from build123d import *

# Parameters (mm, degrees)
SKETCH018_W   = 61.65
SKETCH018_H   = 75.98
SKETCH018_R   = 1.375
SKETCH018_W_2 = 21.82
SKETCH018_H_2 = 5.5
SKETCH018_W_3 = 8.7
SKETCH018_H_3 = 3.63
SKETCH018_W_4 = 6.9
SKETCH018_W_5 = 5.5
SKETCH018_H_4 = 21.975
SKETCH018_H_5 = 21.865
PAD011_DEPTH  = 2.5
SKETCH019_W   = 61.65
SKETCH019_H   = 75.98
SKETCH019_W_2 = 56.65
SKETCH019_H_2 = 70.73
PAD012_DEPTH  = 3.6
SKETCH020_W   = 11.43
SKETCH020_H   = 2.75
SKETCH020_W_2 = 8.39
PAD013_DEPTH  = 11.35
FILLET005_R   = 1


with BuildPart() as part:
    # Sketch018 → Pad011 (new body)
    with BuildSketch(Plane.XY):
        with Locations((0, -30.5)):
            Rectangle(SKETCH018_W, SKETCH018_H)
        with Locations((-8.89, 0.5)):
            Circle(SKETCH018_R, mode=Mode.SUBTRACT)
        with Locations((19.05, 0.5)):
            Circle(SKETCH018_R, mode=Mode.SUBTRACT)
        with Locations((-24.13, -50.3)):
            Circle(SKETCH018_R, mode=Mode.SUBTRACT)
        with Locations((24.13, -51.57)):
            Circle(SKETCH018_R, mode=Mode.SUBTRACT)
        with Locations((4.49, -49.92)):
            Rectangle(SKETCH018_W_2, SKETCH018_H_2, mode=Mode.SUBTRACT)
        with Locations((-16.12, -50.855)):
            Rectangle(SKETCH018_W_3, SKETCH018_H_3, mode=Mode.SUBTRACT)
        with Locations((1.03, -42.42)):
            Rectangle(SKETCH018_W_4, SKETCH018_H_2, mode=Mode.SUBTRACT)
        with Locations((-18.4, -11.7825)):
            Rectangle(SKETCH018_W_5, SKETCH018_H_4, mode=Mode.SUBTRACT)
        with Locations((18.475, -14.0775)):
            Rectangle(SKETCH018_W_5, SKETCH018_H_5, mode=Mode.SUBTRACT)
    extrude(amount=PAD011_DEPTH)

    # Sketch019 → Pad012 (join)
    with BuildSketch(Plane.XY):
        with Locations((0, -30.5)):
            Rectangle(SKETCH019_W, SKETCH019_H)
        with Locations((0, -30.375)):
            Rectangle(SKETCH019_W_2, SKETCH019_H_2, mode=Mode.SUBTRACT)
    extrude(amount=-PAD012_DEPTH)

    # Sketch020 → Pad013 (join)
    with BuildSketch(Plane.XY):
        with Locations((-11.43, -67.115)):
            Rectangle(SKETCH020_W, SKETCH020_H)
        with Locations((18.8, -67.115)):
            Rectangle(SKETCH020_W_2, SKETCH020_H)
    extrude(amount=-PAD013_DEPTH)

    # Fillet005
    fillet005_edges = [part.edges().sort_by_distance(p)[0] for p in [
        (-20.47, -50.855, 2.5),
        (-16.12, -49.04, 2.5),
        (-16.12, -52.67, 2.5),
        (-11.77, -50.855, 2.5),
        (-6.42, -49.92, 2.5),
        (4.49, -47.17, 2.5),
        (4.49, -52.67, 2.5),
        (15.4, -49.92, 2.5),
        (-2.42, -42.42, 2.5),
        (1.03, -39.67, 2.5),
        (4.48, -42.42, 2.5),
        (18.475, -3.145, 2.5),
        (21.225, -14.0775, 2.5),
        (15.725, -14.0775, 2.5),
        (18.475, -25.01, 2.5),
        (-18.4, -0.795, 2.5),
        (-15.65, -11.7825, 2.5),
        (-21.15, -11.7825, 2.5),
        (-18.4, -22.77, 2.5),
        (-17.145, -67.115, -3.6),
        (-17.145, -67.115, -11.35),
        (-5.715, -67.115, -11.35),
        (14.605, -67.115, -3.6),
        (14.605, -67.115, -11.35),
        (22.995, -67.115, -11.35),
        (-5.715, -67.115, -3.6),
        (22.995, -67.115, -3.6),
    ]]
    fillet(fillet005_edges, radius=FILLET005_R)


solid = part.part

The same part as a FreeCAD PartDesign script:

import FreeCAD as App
import Part
import Sketcher


def edges_at(feature, points):
    """Names of the edges that pass closest to the given points."""
    edges = feature.Shape.Edges
    near = lambda p: min(range(len(edges)), key=lambda i: edges[i].distToShape(Part.Vertex(*p))[0])
    return sorted({f"Edge{near(p) + 1}" for p in points})

doc = App.newDocument("Part")
body = doc.addObject("PartDesign::Body", "Body")

sketch1 = body.newObject("Sketcher::SketchObject", "Sketch")
sketch1.AttachmentSupport = (doc.getObject("XY_Plane"), [""])
sketch1.MapMode = "FlatFace"
sketch1.addGeometry(Part.LineSegment(App.Vector(-30.8, 7.5, 0), App.Vector(-30.8, -68.5, 0)), False)
sketch1.addGeometry(Part.LineSegment(App.Vector(-30.8, -68.5, 0), App.Vector(30.8, -68.5, 0)), False)
sketch1.addGeometry(Part.LineSegment(App.Vector(30.8, -68.5, 0), App.Vector(30.8, 7.5, 0)), False)
sketch1.addGeometry(Part.LineSegment(App.Vector(30.8, 7.5, 0), App.Vector(-30.8, 7.5, 0)), False)
sketch1.addGeometry(Part.Circle(App.Vector(-24.1, -50.3, 0), App.Vector(0, 0, 1), 1.4), False)
sketch1.addGeometry(Part.LineSegment(App.Vector(-11.8, -52.7, 0), App.Vector(-20.5, -52.7, 0)), False)
sketch1.addGeometry(Part.LineSegment(App.Vector(-20.5, -52.7, 0), App.Vector(-20.5, -49, 0)), False)
sketch1.addGeometry(Part.LineSegment(App.Vector(-20.5, -49, 0), App.Vector(-11.8, -49, 0)), False)
sketch1.addGeometry(Part.LineSegment(App.Vector(-11.8, -49, 0), App.Vector(-11.8, -52.7, 0)), False)
sketch1.addGeometry(Part.LineSegment(App.Vector(15.4, -52.7, 0), App.Vector(-6.4, -52.7, 0)), False)
sketch1.addGeometry(Part.LineSegment(App.Vector(-6.4, -52.7, 0), App.Vector(-6.4, -47.2, 0)), False)
sketch1.addGeometry(Part.LineSegment(App.Vector(-6.4, -47.2, 0), App.Vector(15.4, -47.2, 0)), False)
sketch1.addGeometry(Part.LineSegment(App.Vector(15.4, -47.2, 0), App.Vector(15.4, -52.7, 0)), False)
sketch1.addGeometry(Part.LineSegment(App.Vector(4.5, -45.2, 0), App.Vector(-2.4, -45.2, 0)), False)
sketch1.addGeometry(Part.LineSegment(App.Vector(-2.4, -45.2, 0), App.Vector(-2.4, -39.7, 0)), False)
sketch1.addGeometry(Part.LineSegment(App.Vector(-2.4, -39.7, 0), App.Vector(4.5, -39.7, 0)), False)
sketch1.addGeometry(Part.LineSegment(App.Vector(4.5, -39.7, 0), App.Vector(4.5, -45.2, 0)), False)
sketch1.addGeometry(Part.Circle(App.Vector(24.1, -51.6, 0), App.Vector(0, 0, 1), 1.4), False)
sketch1.addGeometry(Part.LineSegment(App.Vector(-15.7, -22.8, 0), App.Vector(-21.1, -22.8, 0)), False)
sketch1.addGeometry(Part.LineSegment(App.Vector(-21.1, -22.8, 0), App.Vector(-21.1, -0.8, 0)), False)
sketch1.addGeometry(Part.LineSegment(App.Vector(-21.1, -0.8, 0), App.Vector(-15.7, -0.8, 0)), False)
sketch1.addGeometry(Part.LineSegment(App.Vector(-15.7, -0.8, 0), App.Vector(-15.7, -22.8, 0)), False)
sketch1.addGeometry(Part.Circle(App.Vector(-8.9, 0.5, 0), App.Vector(0, 0, 1), 1.4), False)
sketch1.addGeometry(Part.LineSegment(App.Vector(21.2, -25, 0), App.Vector(15.7, -25, 0)), False)
sketch1.addGeometry(Part.LineSegment(App.Vector(15.7, -25, 0), App.Vector(15.7, -3.1, 0)), False)
sketch1.addGeometry(Part.LineSegment(App.Vector(15.7, -3.1, 0), App.Vector(21.2, -3.1, 0)), False)
sketch1.addGeometry(Part.LineSegment(App.Vector(21.2, -3.1, 0), App.Vector(21.2, -25, 0)), False)
sketch1.addGeometry(Part.Circle(App.Vector(19.1, 0.5, 0), App.Vector(0, 0, 1), 1.4), False)
sketch1.addConstraint(Sketcher.Constraint("Coincident", 0, 2, 1, 1))
sketch1.addConstraint(Sketcher.Constraint("Coincident", 1, 2, 2, 1))
sketch1.addConstraint(Sketcher.Constraint("Coincident", 2, 2, 3, 1))
sketch1.addConstraint(Sketcher.Constraint("Coincident", 3, 2, 0, 1))
sketch1.addConstraint(Sketcher.Constraint("Coincident", 5, 2, 6, 1))
sketch1.addConstraint(Sketcher.Constraint("Coincident", 6, 2, 7, 1))
sketch1.addConstraint(Sketcher.Constraint("Coincident", 7, 2, 8, 1))
sketch1.addConstraint(Sketcher.Constraint("Coincident", 8, 2, 5, 1))
sketch1.addConstraint(Sketcher.Constraint("Coincident", 9, 2, 10, 1))
sketch1.addConstraint(Sketcher.Constraint("Coincident", 10, 2, 11, 1))
sketch1.addConstraint(Sketcher.Constraint("Coincident", 11, 2, 12, 1))
sketch1.addConstraint(Sketcher.Constraint("Coincident", 12, 2, 9, 1))
sketch1.addConstraint(Sketcher.Constraint("Coincident", 13, 2, 14, 1))
sketch1.addConstraint(Sketcher.Constraint("Coincident", 14, 2, 15, 1))
sketch1.addConstraint(Sketcher.Constraint("Coincident", 15, 2, 16, 1))
sketch1.addConstraint(Sketcher.Constraint("Coincident", 16, 2, 13, 1))
sketch1.addConstraint(Sketcher.Constraint("Coincident", 18, 2, 19, 1))
sketch1.addConstraint(Sketcher.Constraint("Coincident", 19, 2, 20, 1))
sketch1.addConstraint(Sketcher.Constraint("Coincident", 20, 2, 21, 1))
sketch1.addConstraint(Sketcher.Constraint("Coincident", 21, 2, 18, 1))
sketch1.addConstraint(Sketcher.Constraint("Coincident", 23, 2, 24, 1))
sketch1.addConstraint(Sketcher.Constraint("Coincident", 24, 2, 25, 1))
sketch1.addConstraint(Sketcher.Constraint("Coincident", 25, 2, 26, 1))
sketch1.addConstraint(Sketcher.Constraint("Coincident", 26, 2, 23, 1))
sketch1.addConstraint(Sketcher.Constraint("Vertical", 0))
sketch1.addConstraint(Sketcher.Constraint("Horizontal", 1))
sketch1.addConstraint(Sketcher.Constraint("Vertical", 2))
sketch1.addConstraint(Sketcher.Constraint("Horizontal", 3))
sketch1.addConstraint(Sketcher.Constraint("Horizontal", 5))
sketch1.addConstraint(Sketcher.Constraint("Vertical", 6))
sketch1.addConstraint(Sketcher.Constraint("Horizontal", 7))
sketch1.addConstraint(Sketcher.Constraint("Vertical", 8))
sketch1.addConstraint(Sketcher.Constraint("Horizontal", 9))
sketch1.addConstraint(Sketcher.Constraint("Vertical", 10))
sketch1.addConstraint(Sketcher.Constraint("Horizontal", 11))
sketch1.addConstraint(Sketcher.Constraint("Vertical", 12))
sketch1.addConstraint(Sketcher.Constraint("Horizontal", 13))
sketch1.addConstraint(Sketcher.Constraint("Vertical", 14))
sketch1.addConstraint(Sketcher.Constraint("Horizontal", 15))
sketch1.addConstraint(Sketcher.Constraint("Vertical", 16))
sketch1.addConstraint(Sketcher.Constraint("Horizontal", 18))
sketch1.addConstraint(Sketcher.Constraint("Vertical", 19))
sketch1.addConstraint(Sketcher.Constraint("Horizontal", 20))
sketch1.addConstraint(Sketcher.Constraint("Vertical", 21))
sketch1.addConstraint(Sketcher.Constraint("Horizontal", 23))
sketch1.addConstraint(Sketcher.Constraint("Vertical", 24))
sketch1.addConstraint(Sketcher.Constraint("Horizontal", 25))
sketch1.addConstraint(Sketcher.Constraint("Vertical", 26))
sketch1.addConstraint(Sketcher.Constraint("Equal", 4, 17))
sketch1.addConstraint(Sketcher.Constraint("Equal", 17, 22))
sketch1.addConstraint(Sketcher.Constraint("Equal", 22, 27))
sketch1.addConstraint(Sketcher.Constraint("Horizontal", 22, 3, 27, 3))
sketch1.addConstraint(Sketcher.Constraint("Horizontal", 8, 2, 9, 2))
sketch1.addConstraint(Sketcher.Constraint("Equal", 20, 23))
sketch1.addConstraint(Sketcher.Constraint("Equal", 25, 10))
sketch1.addConstraint(Sketcher.Constraint("Equal", 12, 14))
sketch1.addConstraint(Sketcher.Constraint("Diameter", 4, 2.75))
sketch1.addConstraint(Sketcher.Constraint("DistanceX", 5, 2, 5, 1, 8.7))
sketch1.addConstraint(Sketcher.Constraint("DistanceX", 13, 2, 13, 1, 6.9))
sketch1.addConstraint(Sketcher.Constraint("DistanceX", 18, 2, 18, 1, 5.5))
sketch1.addConstraint(Sketcher.Constraint("DistanceX", 10, 2, 13, 2, 4.0))
sketch1.addConstraint(Sketcher.Constraint("DistanceY", 10, 2, 13, 2, 2.0))
sketch1.addConstraint(Sketcher.Constraint("DistanceX", 1, 1, 1, 2, 61.65))
sketch1.addConstraint(Sketcher.Constraint("DistanceX", 9, 2, 9, 1, 21.82))
sketch1.addConstraint(Sketcher.Constraint("DistanceY", 0, 2, 0, 1, 75.98))
sketch1.addConstraint(Sketcher.Constraint("DistanceY", 6, 1, 6, 2, 3.63))
sketch1.addConstraint(Sketcher.Constraint("DistanceY", 4, 3, -1, 1, 50.3))
sketch1.addConstraint(Sketcher.Constraint("DistanceY", -1, 1, 22, 3, 0.5))
sketch1.addConstraint(Sketcher.Constraint("DistanceX", -1, 1, 11, 2, 15.4))
sketch1.addConstraint(Sketcher.Constraint("DistanceX", 5, 2, 17, 3, 44.6))
sketch1.addConstraint(Sketcher.Constraint("DistanceY", 5, 2, 17, 3, 1.1))
sketch1.addConstraint(Sketcher.Constraint("DistanceY", 14, 2, 18, 2, 16.9))
sketch1.addConstraint(Sketcher.Constraint("DistanceX", 19, 2, 27, 3, 40.2))
sketch1.addConstraint(Sketcher.Constraint("DistanceX", 24, 2, 2, 2, 15.1))
sketch1.addConstraint(Sketcher.Constraint("DistanceY", 19, 1, 19, 2, 21.975))
sketch1.addConstraint(Sketcher.Constraint("DistanceY", 24, 1, 24, 2, 21.865))
sketch1.addConstraint(Sketcher.Constraint("DistanceX", 4, 3, -1, 1, 24.13))
sketch1.addConstraint(Sketcher.Constraint("DistanceX", -1, 1, 17, 3, 24.13))
sketch1.addConstraint(Sketcher.Constraint("DistanceY", 17, 3, -1, 1, 51.57))
sketch1.addConstraint(Sketcher.Constraint("DistanceX", 22, 3, -1, 1, 8.89))
sketch1.addConstraint(Sketcher.Constraint("DistanceX", -1, 1, 27, 3, 19.05))
sketch1.addConstraint(Sketcher.Constraint("DistanceY", 0, 2, -1, 1, 68.49))
sketch1.addConstraint(Sketcher.Constraint("DistanceY", 23, 2, -1, 1, 25.01))
sketch1.addConstraint(Sketcher.Constraint("DistanceX", 0, 2, -1, 1, 30.825))
pad1 = body.newObject("PartDesign::Pad", "Pad")
pad1.Profile = sketch1
pad1.Length = 2.5

sketch2 = body.newObject("Sketcher::SketchObject", "Sketch001")
sketch2.AttachmentSupport = (doc.getObject("XY_Plane"), [""])
sketch2.MapMode = "FlatFace"
sketch2.addGeometry(Part.LineSegment(App.Vector(-31, 7, 0), App.Vector(-31, -68, 0)), False)
sketch2.addGeometry(Part.LineSegment(App.Vector(-31, -68, 0), App.Vector(31, -68, 0)), False)
sketch2.addGeometry(Part.LineSegment(App.Vector(31, -68, 0), App.Vector(31, 7, 0)), False)
sketch2.addGeometry(Part.LineSegment(App.Vector(31, 7, 0), App.Vector(-31, 7, 0)), False)
sketch2.addGeometry(Part.LineSegment(App.Vector(28, -66, 0), App.Vector(-28, -66, 0)), False)
sketch2.addGeometry(Part.LineSegment(App.Vector(-28, -66, 0), App.Vector(-28, 5, 0)), False)
sketch2.addGeometry(Part.LineSegment(App.Vector(-28, 5, 0), App.Vector(28, 5, 0)), False)
sketch2.addGeometry(Part.LineSegment(App.Vector(28, 5, 0), App.Vector(28, -66, 0)), False)
sketch2.addConstraint(Sketcher.Constraint("Coincident", 0, 2, 1, 1))
sketch2.addConstraint(Sketcher.Constraint("Coincident", 1, 2, 2, 1))
sketch2.addConstraint(Sketcher.Constraint("Coincident", 2, 2, 3, 1))
sketch2.addConstraint(Sketcher.Constraint("Coincident", 3, 2, 0, 1))
sketch2.addConstraint(Sketcher.Constraint("Coincident", 4, 2, 5, 1))
sketch2.addConstraint(Sketcher.Constraint("Coincident", 5, 2, 6, 1))
sketch2.addConstraint(Sketcher.Constraint("Coincident", 6, 2, 7, 1))
sketch2.addConstraint(Sketcher.Constraint("Coincident", 7, 2, 4, 1))
sketch2.addConstraint(Sketcher.Constraint("Vertical", 0))
sketch2.addConstraint(Sketcher.Constraint("Horizontal", 1))
sketch2.addConstraint(Sketcher.Constraint("Vertical", 2))
sketch2.addConstraint(Sketcher.Constraint("Horizontal", 3))
sketch2.addConstraint(Sketcher.Constraint("Horizontal", 4))
sketch2.addConstraint(Sketcher.Constraint("Vertical", 5))
sketch2.addConstraint(Sketcher.Constraint("Horizontal", 6))
sketch2.addConstraint(Sketcher.Constraint("Vertical", 7))
sketch2.addConstraint(Sketcher.Constraint("DistanceX", 1, 1, 1, 2, 61.65))
sketch2.addConstraint(Sketcher.Constraint("DistanceX", 4, 2, 4, 1, 56.65))
sketch2.addConstraint(Sketcher.Constraint("DistanceY", 0, 2, 0, 1, 75.98))
sketch2.addConstraint(Sketcher.Constraint("DistanceY", 5, 1, 5, 2, 70.73))
sketch2.addConstraint(Sketcher.Constraint("DistanceX", 0, 2, 4, 2, 2.5))
sketch2.addConstraint(Sketcher.Constraint("DistanceY", 5, 2, 3, 2, 2.5))
sketch2.addConstraint(Sketcher.Constraint("DistanceY", 0, 2, -1, 1, 68.49))
sketch2.addConstraint(Sketcher.Constraint("DistanceX", 0, 2, -1, 1, 30.825))
pad2 = body.newObject("PartDesign::Pad", "Pad001")
pad2.Profile = sketch2
pad2.Length = 3.6
pad2.Reversed = True

sketch3 = body.newObject("Sketcher::SketchObject", "Sketch002")
sketch3.AttachmentSupport = (doc.getObject("XY_Plane"), [""])
sketch3.MapMode = "FlatFace"
sketch3.addGeometry(Part.LineSegment(App.Vector(-17.1, -65.7, 0), App.Vector(-17.1, -68.5, 0)), False)
sketch3.addGeometry(Part.LineSegment(App.Vector(-17.1, -68.5, 0), App.Vector(-5.7, -68.5, 0)), False)
sketch3.addGeometry(Part.LineSegment(App.Vector(-5.7, -68.5, 0), App.Vector(-5.7, -65.7, 0)), False)
sketch3.addGeometry(Part.LineSegment(App.Vector(-5.7, -65.7, 0), App.Vector(-17.1, -65.7, 0)), False)
sketch3.addGeometry(Part.LineSegment(App.Vector(14.6, -65.7, 0), App.Vector(14.6, -68.5, 0)), False)
sketch3.addGeometry(Part.LineSegment(App.Vector(14.6, -68.5, 0), App.Vector(23, -68.5, 0)), False)
sketch3.addGeometry(Part.LineSegment(App.Vector(23, -68.5, 0), App.Vector(23, -65.7, 0)), False)
sketch3.addGeometry(Part.LineSegment(App.Vector(23, -65.7, 0), App.Vector(14.6, -65.7, 0)), False)
sketch3.addConstraint(Sketcher.Constraint("Coincident", 0, 2, 1, 1))
sketch3.addConstraint(Sketcher.Constraint("Coincident", 1, 2, 2, 1))
sketch3.addConstraint(Sketcher.Constraint("Coincident", 2, 2, 3, 1))
sketch3.addConstraint(Sketcher.Constraint("Coincident", 3, 2, 0, 1))
sketch3.addConstraint(Sketcher.Constraint("Coincident", 4, 2, 5, 1))
sketch3.addConstraint(Sketcher.Constraint("Coincident", 5, 2, 6, 1))
sketch3.addConstraint(Sketcher.Constraint("Coincident", 6, 2, 7, 1))
sketch3.addConstraint(Sketcher.Constraint("Coincident", 7, 2, 4, 1))
sketch3.addConstraint(Sketcher.Constraint("Vertical", 0))
sketch3.addConstraint(Sketcher.Constraint("Horizontal", 1))
sketch3.addConstraint(Sketcher.Constraint("Vertical", 2))
sketch3.addConstraint(Sketcher.Constraint("Horizontal", 3))
sketch3.addConstraint(Sketcher.Constraint("Vertical", 4))
sketch3.addConstraint(Sketcher.Constraint("Horizontal", 5))
sketch3.addConstraint(Sketcher.Constraint("Vertical", 6))
sketch3.addConstraint(Sketcher.Constraint("Horizontal", 7))
sketch3.addConstraint(Sketcher.Constraint("Horizontal", 1, 2, 4, 2))
sketch3.addConstraint(Sketcher.Constraint("Horizontal", 3, 2, 6, 2))
sketch3.addConstraint(Sketcher.Constraint("DistanceX", 1, 1, 1, 2, 11.43))
sketch3.addConstraint(Sketcher.Constraint("DistanceX", 5, 1, 5, 2, 8.39))
sketch3.addConstraint(Sketcher.Constraint("DistanceY", 0, 2, 0, 1, 2.75))
sketch3.addConstraint(Sketcher.Constraint("DistanceY", 0, 2, -1, 1, 68.49))
sketch3.addConstraint(Sketcher.Constraint("DistanceX", 1, 2, 4, 2, 20.32))
sketch3.addConstraint(Sketcher.Constraint("DistanceX", 0, 2, -1, 1, 17.145))
pad3 = body.newObject("PartDesign::Pad", "Pad002")
pad3.Profile = sketch3
pad3.Length = 11.35
pad3.Reversed = True
doc.recompute()

fillet = body.newObject("PartDesign::Fillet", "Fillet")
fillet.Base = (pad3, edges_at(pad3, [
    (-20.47, -50.855, 2.5),
    (-16.12, -49.04, 2.5),
    (-16.12, -52.67, 2.5),
    (-11.77, -50.855, 2.5),
    (-6.42, -49.92, 2.5),
    (4.49, -47.17, 2.5),
    (4.49, -52.67, 2.5),
    (15.4, -49.92, 2.5),
    (-2.42, -42.42, 2.5),
    (1.03, -39.67, 2.5),
    (4.48, -42.42, 2.5),
    (18.475, -3.145, 2.5),
    (21.225, -14.078, 2.5),
    (15.725, -14.078, 2.5),
    (18.475, -25.01, 2.5),
    (-18.4, -0.795, 2.5),
    (-15.65, -11.783, 2.5),
    (-21.15, -11.783, 2.5),
    (-18.4, -22.77, 2.5),
    (-17.145, -67.115, -3.6),
    (-17.145, -67.115, -11.35),
    (-5.715, -67.115, -11.35),
    (14.605, -67.115, -3.6),
    (14.605, -67.115, -11.35),
    (22.995, -67.115, -11.35),
    (-5.715, -67.115, -3.6),
    (22.995, -67.115, -3.6),
]))
fillet.Radius = 1

doc.recompute()
